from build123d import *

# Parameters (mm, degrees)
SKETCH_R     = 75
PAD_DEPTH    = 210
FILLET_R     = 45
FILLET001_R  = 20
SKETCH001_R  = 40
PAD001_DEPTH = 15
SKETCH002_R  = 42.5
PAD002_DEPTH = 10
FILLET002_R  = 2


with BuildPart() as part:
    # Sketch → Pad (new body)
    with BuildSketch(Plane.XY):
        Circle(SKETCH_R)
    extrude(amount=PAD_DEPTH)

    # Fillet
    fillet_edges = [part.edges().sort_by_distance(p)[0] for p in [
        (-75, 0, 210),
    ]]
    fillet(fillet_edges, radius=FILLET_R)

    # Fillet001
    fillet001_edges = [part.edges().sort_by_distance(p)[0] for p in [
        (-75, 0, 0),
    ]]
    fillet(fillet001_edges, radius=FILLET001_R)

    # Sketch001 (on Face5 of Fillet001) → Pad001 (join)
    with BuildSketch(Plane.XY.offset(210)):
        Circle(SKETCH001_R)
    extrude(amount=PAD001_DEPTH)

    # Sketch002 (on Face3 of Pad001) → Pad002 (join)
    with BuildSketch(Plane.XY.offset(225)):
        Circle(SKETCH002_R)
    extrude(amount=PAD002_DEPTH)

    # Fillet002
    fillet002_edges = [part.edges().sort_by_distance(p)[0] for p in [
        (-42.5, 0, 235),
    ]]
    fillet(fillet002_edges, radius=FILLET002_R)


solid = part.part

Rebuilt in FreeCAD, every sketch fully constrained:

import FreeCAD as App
import Part
import Sketcher


def edges_at(feature, points):
    """Names of the edges that pass closest to the given points."""
    edges = feature.Shape.Edges
    near = lambda p: min(range(len(edges)), key=lambda i: edges[i].distToShape(Part.Vertex(*p))[0])
    return sorted({f"Edge{near(p) + 1}" for p in points})

doc = App.newDocument("Part")
body = doc.addObject("PartDesign::Body", "Body")

sketch1 = body.newObject("Sketcher::SketchObject", "Sketch")
sketch1.AttachmentSupport = (doc.getObject("XY_Plane"), [""])
sketch1.MapMode = "FlatFace"
sketch1.addGeometry(Part.Circle(App.Vector(0, 0, 0), App.Vector(0, 0, 1), 75), False)
sketch1.addConstraint([
    Sketcher.Constraint("Coincident", 0, 3, -1, 1),
    Sketcher.Constraint("Diameter", 0, 150.0),
])
pad1 = body.newObject("PartDesign::Pad", "Pad")
pad1.Profile = sketch1
pad1.Length = 210
doc.recompute()

fillet = body.newObject("PartDesign::Fillet", "Fillet")
fillet.Base = (pad1, edges_at(pad1, [(-75, 0, 210)]))
fillet.Radius = 45
doc.recompute()

fillet2 = body.newObject("PartDesign::Fillet", "Fillet001")
fillet2.Base = (fillet, edges_at(fillet, [(-75, 0, 0)]))
fillet2.Radius = 20

sketch2 = body.newObject("Sketcher::SketchObject", "Sketch001")
sketch2.AttachmentSupport = (doc.getObject("XY_Plane"), [""])
sketch2.MapMode = "FlatFace"
sketch2.AttachmentOffset = App.Placement(App.Vector(0, 0, 210), App.Rotation())
sketch2.addGeometry(Part.Circle(App.Vector(0, 0, 0), App.Vector(0, 0, 1), 40), False)
sketch2.addConstraint([
    Sketcher.Constraint("Coincident", 0, 3, -1, 1),
    Sketcher.Constraint("Diameter", 0, 80.0),
])
pad2 = body.newObject("PartDesign::Pad", "Pad001")
pad2.Profile = sketch2
pad2.Length = 15

sketch3 = body.newObject("Sketcher::SketchObject", "Sketch002")
sketch3.AttachmentSupport = (doc.getObject("XY_Plane"), [""])
sketch3.MapMode = "FlatFace"
sketch3.AttachmentOffset = App.Placement(App.Vector(0, 0, 225), App.Rotation())
sketch3.addGeometry(Part.Circle(App.Vector(0, 0, 0), App.Vector(0, 0, 1), 42.5), False)
sketch3.addConstraint([
    Sketcher.Constraint("Coincident", 0, 3, -1, 1),
    Sketcher.Constraint("Diameter", 0, 85.0),
])
pad3 = body.newObject("PartDesign::Pad", "Pad002")
pad3.Profile = sketch3
pad3.Length = 10
doc.recompute()

fillet3 = body.newObject("PartDesign::Fillet", "Fillet002")
fillet3.Base = (pad3, edges_at(pad3, [(-42.5, 0, 235)]))
fillet3.Radius = 2

doc.recompute()
